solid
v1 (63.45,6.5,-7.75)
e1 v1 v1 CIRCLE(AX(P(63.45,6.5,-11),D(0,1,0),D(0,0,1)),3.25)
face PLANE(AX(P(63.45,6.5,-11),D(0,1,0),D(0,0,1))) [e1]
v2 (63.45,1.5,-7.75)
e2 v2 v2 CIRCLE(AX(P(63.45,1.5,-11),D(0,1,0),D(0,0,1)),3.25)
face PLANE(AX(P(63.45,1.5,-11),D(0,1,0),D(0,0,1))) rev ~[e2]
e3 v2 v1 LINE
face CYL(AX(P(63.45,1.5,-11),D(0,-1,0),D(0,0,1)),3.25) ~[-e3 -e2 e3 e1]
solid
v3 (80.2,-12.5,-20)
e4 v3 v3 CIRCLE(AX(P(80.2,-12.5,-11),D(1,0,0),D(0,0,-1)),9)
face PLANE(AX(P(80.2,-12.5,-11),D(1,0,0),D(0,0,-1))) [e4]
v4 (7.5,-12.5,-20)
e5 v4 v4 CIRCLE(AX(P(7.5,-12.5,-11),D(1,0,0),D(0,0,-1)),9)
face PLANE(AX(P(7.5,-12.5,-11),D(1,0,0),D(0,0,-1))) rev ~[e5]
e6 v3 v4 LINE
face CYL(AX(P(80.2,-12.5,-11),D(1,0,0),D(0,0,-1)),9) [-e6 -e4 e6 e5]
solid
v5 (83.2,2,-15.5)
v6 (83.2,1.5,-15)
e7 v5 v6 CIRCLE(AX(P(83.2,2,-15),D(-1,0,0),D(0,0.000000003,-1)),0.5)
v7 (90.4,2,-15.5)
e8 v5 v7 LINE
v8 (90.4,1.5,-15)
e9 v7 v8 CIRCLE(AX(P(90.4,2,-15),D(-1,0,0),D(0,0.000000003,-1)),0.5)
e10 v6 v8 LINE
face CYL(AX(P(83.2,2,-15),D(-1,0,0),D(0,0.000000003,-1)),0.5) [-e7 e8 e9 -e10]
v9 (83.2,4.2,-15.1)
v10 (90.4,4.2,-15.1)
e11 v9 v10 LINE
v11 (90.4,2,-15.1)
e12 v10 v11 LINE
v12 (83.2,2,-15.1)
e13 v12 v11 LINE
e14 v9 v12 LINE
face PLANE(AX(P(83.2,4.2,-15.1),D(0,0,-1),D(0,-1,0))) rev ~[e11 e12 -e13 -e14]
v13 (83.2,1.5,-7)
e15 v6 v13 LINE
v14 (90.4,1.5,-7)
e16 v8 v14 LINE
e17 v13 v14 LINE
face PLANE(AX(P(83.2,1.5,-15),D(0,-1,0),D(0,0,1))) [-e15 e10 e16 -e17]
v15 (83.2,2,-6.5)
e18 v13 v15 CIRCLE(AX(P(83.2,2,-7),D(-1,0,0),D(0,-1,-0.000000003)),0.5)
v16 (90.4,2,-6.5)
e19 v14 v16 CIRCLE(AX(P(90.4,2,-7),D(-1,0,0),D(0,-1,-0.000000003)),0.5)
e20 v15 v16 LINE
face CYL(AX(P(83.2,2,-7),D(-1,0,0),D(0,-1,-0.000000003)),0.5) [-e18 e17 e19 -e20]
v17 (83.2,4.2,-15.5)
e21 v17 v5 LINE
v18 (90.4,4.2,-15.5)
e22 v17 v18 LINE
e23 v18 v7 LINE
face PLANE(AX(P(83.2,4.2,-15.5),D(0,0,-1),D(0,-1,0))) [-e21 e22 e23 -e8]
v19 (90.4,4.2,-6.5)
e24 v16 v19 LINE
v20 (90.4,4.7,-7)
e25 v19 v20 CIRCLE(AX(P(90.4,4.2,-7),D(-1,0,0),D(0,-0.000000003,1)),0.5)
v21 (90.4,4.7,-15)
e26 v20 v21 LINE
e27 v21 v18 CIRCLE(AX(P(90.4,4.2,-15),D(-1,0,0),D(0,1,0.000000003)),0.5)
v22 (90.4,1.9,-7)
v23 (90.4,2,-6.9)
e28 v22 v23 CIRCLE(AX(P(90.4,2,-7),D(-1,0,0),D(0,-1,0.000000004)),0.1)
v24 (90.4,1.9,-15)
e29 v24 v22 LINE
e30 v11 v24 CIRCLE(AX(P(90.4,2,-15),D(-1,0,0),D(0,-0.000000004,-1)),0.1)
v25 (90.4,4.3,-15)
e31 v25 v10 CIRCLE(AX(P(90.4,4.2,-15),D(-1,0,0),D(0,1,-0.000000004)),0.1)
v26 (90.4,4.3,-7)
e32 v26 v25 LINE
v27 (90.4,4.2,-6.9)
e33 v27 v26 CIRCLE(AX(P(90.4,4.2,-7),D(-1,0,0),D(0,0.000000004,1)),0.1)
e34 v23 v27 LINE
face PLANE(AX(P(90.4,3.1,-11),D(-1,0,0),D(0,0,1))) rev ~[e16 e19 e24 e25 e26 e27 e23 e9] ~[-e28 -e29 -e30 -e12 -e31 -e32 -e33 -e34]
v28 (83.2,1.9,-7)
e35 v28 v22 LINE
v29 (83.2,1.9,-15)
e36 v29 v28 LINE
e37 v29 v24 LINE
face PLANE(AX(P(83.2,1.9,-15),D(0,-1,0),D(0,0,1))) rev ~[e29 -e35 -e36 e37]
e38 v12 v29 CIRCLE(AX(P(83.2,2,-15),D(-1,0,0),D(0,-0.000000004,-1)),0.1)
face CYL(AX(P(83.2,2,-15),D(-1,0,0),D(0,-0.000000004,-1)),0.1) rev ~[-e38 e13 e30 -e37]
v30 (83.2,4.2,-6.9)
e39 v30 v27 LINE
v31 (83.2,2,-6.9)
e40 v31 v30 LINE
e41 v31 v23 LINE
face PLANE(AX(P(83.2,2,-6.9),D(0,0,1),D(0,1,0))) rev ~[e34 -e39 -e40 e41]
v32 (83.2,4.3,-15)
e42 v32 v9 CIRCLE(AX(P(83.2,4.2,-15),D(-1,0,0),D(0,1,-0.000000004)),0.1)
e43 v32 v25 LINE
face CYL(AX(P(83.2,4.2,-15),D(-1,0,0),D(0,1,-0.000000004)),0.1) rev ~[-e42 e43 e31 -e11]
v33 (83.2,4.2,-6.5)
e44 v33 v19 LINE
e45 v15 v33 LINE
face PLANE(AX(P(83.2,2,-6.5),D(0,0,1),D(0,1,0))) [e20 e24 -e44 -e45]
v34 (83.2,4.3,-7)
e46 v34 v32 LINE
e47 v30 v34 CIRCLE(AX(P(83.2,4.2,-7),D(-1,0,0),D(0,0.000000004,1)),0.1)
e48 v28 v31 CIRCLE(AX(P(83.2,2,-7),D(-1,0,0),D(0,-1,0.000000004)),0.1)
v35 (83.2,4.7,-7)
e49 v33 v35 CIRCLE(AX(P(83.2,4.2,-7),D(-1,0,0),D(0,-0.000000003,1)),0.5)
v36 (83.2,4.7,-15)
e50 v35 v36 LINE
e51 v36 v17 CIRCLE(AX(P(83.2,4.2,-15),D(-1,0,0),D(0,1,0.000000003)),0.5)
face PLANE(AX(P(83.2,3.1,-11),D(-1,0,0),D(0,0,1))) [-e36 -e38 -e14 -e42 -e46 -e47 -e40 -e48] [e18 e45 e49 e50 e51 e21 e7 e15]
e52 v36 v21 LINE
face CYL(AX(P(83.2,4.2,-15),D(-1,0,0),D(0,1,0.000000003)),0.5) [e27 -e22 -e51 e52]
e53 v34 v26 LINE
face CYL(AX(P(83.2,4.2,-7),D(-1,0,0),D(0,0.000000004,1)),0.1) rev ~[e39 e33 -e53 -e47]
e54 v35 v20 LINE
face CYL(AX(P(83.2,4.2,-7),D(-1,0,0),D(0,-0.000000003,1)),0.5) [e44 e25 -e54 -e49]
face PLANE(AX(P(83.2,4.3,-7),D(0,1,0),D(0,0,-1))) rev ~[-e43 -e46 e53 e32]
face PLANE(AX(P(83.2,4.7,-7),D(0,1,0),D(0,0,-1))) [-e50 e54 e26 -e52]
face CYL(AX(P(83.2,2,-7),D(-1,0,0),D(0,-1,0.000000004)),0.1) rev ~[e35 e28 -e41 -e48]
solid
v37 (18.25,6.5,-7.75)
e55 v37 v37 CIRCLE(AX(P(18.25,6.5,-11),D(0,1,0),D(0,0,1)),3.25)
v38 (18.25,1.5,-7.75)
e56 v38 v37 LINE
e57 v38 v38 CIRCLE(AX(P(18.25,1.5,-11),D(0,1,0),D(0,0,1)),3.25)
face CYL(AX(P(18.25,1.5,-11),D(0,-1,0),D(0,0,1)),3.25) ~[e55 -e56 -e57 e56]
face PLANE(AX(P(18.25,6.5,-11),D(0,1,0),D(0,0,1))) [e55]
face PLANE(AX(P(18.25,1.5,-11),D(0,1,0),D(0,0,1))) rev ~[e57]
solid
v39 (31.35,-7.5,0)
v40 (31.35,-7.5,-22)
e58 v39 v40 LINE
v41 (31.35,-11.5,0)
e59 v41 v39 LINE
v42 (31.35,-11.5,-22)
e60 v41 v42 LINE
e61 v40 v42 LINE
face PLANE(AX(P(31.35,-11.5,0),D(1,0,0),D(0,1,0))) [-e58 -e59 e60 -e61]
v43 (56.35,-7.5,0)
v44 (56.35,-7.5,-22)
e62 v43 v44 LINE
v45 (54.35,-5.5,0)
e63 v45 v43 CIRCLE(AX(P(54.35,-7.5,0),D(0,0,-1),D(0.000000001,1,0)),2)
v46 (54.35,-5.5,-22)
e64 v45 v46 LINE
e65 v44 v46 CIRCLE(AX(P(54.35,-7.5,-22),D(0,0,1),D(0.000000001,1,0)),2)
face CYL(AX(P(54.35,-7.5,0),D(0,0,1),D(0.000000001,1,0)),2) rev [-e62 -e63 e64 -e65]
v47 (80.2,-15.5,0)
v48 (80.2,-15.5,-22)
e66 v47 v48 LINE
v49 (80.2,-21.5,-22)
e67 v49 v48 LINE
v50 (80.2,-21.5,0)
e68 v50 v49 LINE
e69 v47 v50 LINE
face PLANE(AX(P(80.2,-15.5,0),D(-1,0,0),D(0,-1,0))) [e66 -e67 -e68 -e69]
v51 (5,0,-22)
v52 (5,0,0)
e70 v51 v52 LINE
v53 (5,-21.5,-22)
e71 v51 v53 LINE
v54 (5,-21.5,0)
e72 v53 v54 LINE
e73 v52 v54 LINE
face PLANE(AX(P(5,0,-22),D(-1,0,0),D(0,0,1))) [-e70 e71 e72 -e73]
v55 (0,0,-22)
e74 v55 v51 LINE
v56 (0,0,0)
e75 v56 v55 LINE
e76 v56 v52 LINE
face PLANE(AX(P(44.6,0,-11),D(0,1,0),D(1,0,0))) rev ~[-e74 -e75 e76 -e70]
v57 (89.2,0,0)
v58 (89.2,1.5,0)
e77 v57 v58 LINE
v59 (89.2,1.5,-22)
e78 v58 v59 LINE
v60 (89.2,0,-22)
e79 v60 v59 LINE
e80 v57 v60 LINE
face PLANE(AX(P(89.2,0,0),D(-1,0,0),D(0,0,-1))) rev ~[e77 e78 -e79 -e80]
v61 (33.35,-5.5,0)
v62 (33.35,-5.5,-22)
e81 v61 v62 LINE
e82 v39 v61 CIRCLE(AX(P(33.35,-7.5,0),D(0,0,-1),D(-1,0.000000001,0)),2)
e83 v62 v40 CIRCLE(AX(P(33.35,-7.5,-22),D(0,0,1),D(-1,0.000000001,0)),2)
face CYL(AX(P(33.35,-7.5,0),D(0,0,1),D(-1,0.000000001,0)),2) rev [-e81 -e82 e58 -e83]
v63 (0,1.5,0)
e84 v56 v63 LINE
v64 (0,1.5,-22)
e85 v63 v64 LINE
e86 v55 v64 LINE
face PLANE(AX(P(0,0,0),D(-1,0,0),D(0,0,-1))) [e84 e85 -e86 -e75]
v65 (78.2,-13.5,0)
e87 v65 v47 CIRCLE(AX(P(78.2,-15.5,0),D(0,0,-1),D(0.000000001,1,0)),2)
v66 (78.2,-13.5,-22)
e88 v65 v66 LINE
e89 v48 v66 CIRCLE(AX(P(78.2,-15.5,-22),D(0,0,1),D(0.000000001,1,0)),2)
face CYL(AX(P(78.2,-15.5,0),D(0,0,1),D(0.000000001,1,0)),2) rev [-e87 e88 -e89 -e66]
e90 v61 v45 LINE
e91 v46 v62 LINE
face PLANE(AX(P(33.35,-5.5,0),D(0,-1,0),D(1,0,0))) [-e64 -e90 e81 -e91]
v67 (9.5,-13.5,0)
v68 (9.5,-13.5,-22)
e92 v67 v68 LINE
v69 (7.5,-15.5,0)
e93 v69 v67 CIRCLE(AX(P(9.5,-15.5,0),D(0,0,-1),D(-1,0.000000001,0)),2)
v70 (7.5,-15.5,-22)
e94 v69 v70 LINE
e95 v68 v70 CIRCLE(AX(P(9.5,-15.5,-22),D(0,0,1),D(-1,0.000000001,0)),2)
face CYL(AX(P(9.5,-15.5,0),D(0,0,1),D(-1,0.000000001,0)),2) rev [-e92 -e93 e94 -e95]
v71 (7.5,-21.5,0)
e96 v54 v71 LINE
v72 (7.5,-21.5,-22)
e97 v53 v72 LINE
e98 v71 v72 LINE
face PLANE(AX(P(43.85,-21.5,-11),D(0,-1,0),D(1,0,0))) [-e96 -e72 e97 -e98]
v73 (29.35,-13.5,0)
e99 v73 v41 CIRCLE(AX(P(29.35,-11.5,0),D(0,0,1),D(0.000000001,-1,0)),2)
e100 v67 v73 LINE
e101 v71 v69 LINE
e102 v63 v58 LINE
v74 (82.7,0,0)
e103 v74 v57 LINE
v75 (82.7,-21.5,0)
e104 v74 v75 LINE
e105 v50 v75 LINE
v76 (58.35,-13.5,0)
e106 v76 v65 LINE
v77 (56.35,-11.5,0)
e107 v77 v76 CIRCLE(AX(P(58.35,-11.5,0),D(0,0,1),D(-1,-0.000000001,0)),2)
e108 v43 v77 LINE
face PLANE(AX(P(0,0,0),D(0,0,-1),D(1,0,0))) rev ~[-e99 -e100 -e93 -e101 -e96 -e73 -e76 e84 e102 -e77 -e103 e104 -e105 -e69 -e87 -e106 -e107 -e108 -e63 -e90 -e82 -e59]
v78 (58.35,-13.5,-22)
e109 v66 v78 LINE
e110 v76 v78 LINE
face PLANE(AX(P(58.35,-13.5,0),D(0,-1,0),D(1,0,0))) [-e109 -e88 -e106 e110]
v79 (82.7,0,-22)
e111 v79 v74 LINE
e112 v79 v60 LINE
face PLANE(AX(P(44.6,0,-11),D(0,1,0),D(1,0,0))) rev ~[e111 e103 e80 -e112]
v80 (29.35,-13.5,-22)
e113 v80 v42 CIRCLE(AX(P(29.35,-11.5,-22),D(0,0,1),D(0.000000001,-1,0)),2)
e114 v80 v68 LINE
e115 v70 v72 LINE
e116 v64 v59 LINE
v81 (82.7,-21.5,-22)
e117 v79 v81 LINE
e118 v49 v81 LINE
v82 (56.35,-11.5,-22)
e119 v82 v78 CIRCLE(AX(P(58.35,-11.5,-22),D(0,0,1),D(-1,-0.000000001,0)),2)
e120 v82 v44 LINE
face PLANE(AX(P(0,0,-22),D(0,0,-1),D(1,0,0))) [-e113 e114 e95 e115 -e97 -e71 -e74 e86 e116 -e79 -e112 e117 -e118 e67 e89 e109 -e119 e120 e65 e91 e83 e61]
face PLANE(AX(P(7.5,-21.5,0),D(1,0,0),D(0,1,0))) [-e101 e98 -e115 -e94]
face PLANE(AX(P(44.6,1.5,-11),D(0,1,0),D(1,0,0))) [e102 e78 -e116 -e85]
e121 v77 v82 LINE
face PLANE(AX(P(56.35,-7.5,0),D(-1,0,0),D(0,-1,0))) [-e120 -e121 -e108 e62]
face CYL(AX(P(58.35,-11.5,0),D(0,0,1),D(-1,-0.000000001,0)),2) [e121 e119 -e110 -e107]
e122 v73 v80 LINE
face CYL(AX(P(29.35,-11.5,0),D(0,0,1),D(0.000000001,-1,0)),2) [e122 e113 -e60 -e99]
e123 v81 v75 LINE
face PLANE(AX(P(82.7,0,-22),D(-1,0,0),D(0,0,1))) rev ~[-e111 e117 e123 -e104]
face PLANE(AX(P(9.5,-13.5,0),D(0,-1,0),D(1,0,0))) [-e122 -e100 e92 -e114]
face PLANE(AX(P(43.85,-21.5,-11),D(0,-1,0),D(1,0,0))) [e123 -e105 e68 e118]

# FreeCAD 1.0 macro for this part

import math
import FreeCAD as App
import Part
import Sketcher
from FreeCAD import Vector
Q = App.Units.Quantity


def add_polygon(sketch, points):
    """Adds a closed chain of lines whose ends are joined by coincident constraints."""
    first, n = sketch.GeometryCount, len(points)
    for a, b in zip(points, points[1:] + points[:1]):
        sketch.addGeometry(Part.LineSegment(App.Vector(*a, 0), App.Vector(*b, 0)), False)
    for i in range(n):
        sketch.addConstraint(Sketcher.Constraint("Coincident", first + i, 2, first + (i + 1) % n, 1))

doc = App.newDocument("Part")
body = doc.addObject("PartDesign::Body", "Body")

# Sketch on XZ plane
sketch1 = body.newObject("Sketcher::SketchObject", "Sketch")
sketch1.AttachmentSupport = (doc.getObject("XZ_Plane"), [""])
sketch1.MapMode = "FlatFace"
add_polygon(sketch1, [(0, -22), (0, 0), (89, 0), (89, -22)])  # lines 0-3
sketch1.addConstraint([
    Sketcher.Constraint("Vertical", 0),
    Sketcher.Constraint("Horizontal", 1),
    Sketcher.Constraint("Vertical", 2),
    Sketcher.Constraint("Horizontal", 3),
    Sketcher.Constraint("Coincident", 0, 2, -1, 1),
    Sketcher.Constraint("DistanceY", 0, 1, 0, 2, Q("22 mm")),
    Sketcher.Constraint("DistanceX", 1, 1, 1, 2, Q("89.2 mm")),
])
pad1 = body.newObject("PartDesign::Pad", "Pad")
pad1.Profile = sketch1
pad1.Length = 1.5
pad1.Reversed = True

# Sketch on XZ plane
sketch2 = body.newObject("Sketcher::SketchObject", "Sketch001")
sketch2.AttachmentSupport = (doc.getObject("XZ_Plane"), [""])
sketch2.MapMode = "FlatFace"
add_polygon(sketch2, [(5, 0), (5, -22), (83, -22), (83, 0)])  # lines 0-3
sketch2.addConstraint([
    Sketcher.Constraint("Vertical", 0),
    Sketcher.Constraint("Horizontal", 1),
    Sketcher.Constraint("Vertical", 2),
    Sketcher.Constraint("Horizontal", 3),
    Sketcher.Constraint("PointOnObject", 2, 2, -1),
    Sketcher.Constraint("DistanceY", 0, 2, 0, 1, Q("22 mm")),
    Sketcher.Constraint("DistanceX", 1, 1, 1, 2, Q("77.7 mm")),
    Sketcher.Constraint("DistanceX", -1, 1, 0, 2, Q("5 mm")),
])
pad2 = body.newObject("PartDesign::Pad", "Pad001")
pad2.Profile = sketch2
pad2.Length = 21.5

# Sketch on XY plane
sketch3 = body.newObject("Sketcher::SketchObject", "Sketch002")
sketch3.AttachmentSupport = (doc.getObject("XY_Plane"), [""])
sketch3.MapMode = "FlatFace"
sketch3.addGeometry([
    Part.LineSegment(Vector(7.5, -15.5, 0), Vector(7.5, -21.5, 0)),  # 0
    Part.LineSegment(Vector(7.5, -21.5, 0), Vector(80.2, -21.5, 0)),  # 1
    Part.LineSegment(Vector(80.2, -21.5, 0), Vector(80.2, -15.5, 0)),  # 2
    Part.ArcOfCircle(Part.Circle(Vector(78.2, -15.5, 0), Vector(0, 0, 1), 2), math.radians(0), math.radians(90)),  # 3
    Part.LineSegment(Vector(78.2, -13.5, 0), Vector(58.4, -13.5, 0)),  # 4
    Part.ArcOfCircle(Part.Circle(Vector(58.4, -11.5, 0), Vector(0, 0, 1), 2), math.radians(-180), math.radians(-90)),  # 5
    Part.LineSegment(Vector(56.4, -11.5, 0), Vector(56.4, -7.5, 0)),  # 6
    Part.ArcOfCircle(Part.Circle(Vector(54.3, -7.5, 0), Vector(0, 0, 1), 2), math.radians(0), math.radians(90)),  # 7
    Part.LineSegment(Vector(54.4, -5.5, 0), Vector(33.4, -5.5, 0)),  # 8
    Part.ArcOfCircle(Part.Circle(Vector(33.4, -7.5, 0), Vector(0, 0, 1), 2), math.radians(90), math.radians(180)),  # 9
    Part.LineSegment(Vector(31.4, -7.5, 0), Vector(31.4, -11.5, 0)),  # 10
    Part.ArcOfCircle(Part.Circle(Vector(29.3, -11.5, 0), Vector(0, 0, 1), 2), math.radians(-90), math.radians(0)),  # 11
    Part.LineSegment(Vector(29.4, -13.5, 0), Vector(9.5, -13.5, 0)),  # 12
    Part.ArcOfCircle(Part.Circle(Vector(9.5, -15.5, 0), Vector(0, 0, 1), 2), math.radians(90), math.radians(180)),  # 13
], False)
sketch3.addConstraint([
    Sketcher.Constraint("Coincident", 0, 2, 1, 1),
    Sketcher.Constraint("Coincident", 1, 2, 2, 1),
    Sketcher.Constraint("Tangent", 2, 2, 3, 1),
    Sketcher.Constraint("Tangent", 3, 2, 4, 1),
    Sketcher.Constraint("Tangent", 4, 2, 5, 2),
    Sketcher.Constraint("Tangent", 5, 1, 6, 1),
    Sketcher.Constraint("Tangent", 6, 2, 7, 1),
    Sketcher.Constraint("Tangent", 7, 2, 8, 1),
    Sketcher.Constraint("Tangent", 8, 2, 9, 1),
    Sketcher.Constraint("Tangent", 9, 2, 10, 1),
    Sketcher.Constraint("Tangent", 10, 2, 11, 2),
    Sketcher.Constraint("Tangent", 11, 1, 12, 1),
    Sketcher.Constraint("Tangent", 12, 2, 13, 1),
    Sketcher.Constraint("Tangent", 13, 2, 0, 1),
    Sketcher.Constraint("Vertical", 0),
    Sketcher.Constraint("Horizontal", 1),
    Sketcher.Constraint("Vertical", 2),
    Sketcher.Constraint("Horizontal", 4),
    Sketcher.Constraint("Vertical", 6),
    Sketcher.Constraint("Horizontal", 8),
    Sketcher.Constraint("Vertical", 10),
    Sketcher.Constraint("Horizontal", 12),
    Sketcher.Constraint("Equal", 3, 5),
    Sketcher.Constraint("Equal", 5, 7),
    Sketcher.Constraint("Equal", 7, 9),
    Sketcher.Constraint("Equal", 9, 11),
    Sketcher.Constraint("Equal", 11, 13),
    Sketcher.Constraint("Horizontal", 5, 3, 11, 3),
    Sketcher.Constraint("Equal", 4, 12),
    Sketcher.Constraint("Radius", 3, Q("2 mm")),
    Sketcher.Constraint("DistanceX", 8, 2, 8, 1, Q("21 mm")),
    Sketcher.Constraint("DistanceY", 0, 2, 0, 1, Q("6 mm")),
    Sketcher.Constraint("DistanceY", 6, 1, 6, 2, Q("4 mm")),
    Sketcher.Constraint("DistanceX", 1, 1, 1, 2, Q("72.7 mm")),
    Sketcher.Constraint("DistanceX", -1, 1, 3, 3, Q("78.2 mm")),
    Sketcher.Constraint("DistanceY", 3, 3, -1, 1, Q("15.5 mm")),
])
pocket1 = body.newObject("PartDesign::Pocket", "Pocket")
pocket1.Profile = sketch3
pocket1.Length = 31.5
body2 = doc.addObject("PartDesign::Body", "Body001")

# Sketch on YZ plane
sketch4 = body2.newObject("Sketcher::SketchObject", "Sketch003")
sketch4.AttachmentSupport = (doc.getObject("YZ_Plane001"), [""])
sketch4.MapMode = "FlatFace"
sketch4.AttachmentOffset = App.Placement(Vector(0, 0, 89.2), App.Rotation())
sketch4.addGeometry([
    Part.LineSegment(Vector(4.7, -15, 0), Vector(4.7, -7, 0)),  # 0
    Part.ArcOfCircle(Part.Circle(Vector(4.2, -7, 0), Vector(0, 0, 1), 0.5), math.radians(0), math.radians(90)),  # 1
    Part.LineSegment(Vector(4.2, -6.5, 0), Vector(2, -6.5, 0)),  # 2
    Part.ArcOfCircle(Part.Circle(Vector(2, -7, 0), Vector(0, 0, 1), 0.5), math.radians(90), math.radians(180)),  # 3
    Part.LineSegment(Vector(1.5, -7, 0), Vector(1.5, -15, 0)),  # 4
    Part.ArcOfCircle(Part.Circle(Vector(2, -15, 0), Vector(0, 0, 1), 0.5), math.radians(180), math.radians(270)),  # 5
    Part.LineSegment(Vector(2, -15.5, 0), Vector(4.2, -15.5, 0)),  # 6
    Part.ArcOfCircle(Part.Circle(Vector(4.2, -15, 0), Vector(0, 0, 1), 0.5), math.radians(-90), math.radians(0)),  # 7
    Part.LineSegment(Vector(4.3, -7, 0), Vector(4.3, -15, 0)),  # 8
    Part.ArcOfCircle(Part.Circle(Vector(4.2, -15, 0), Vector(0, 0, 1), 0.1), math.radians(-90), math.radians(0)),  # 9
    Part.LineSegment(Vector(4.2, -15.1, 0), Vector(2, -15.1, 0)),  # 10
    Part.ArcOfCircle(Part.Circle(Vector(2, -15, 0), Vector(0, 0, 1), 0.1), math.radians(180), math.radians(270)),  # 11
    Part.LineSegment(Vector(1.9, -15, 0), Vector(1.9, -7, 0)),  # 12
    Part.ArcOfCircle(Part.Circle(Vector(2, -7, 0), Vector(0, 0, 1), 0.1), math.radians(90), math.radians(180)),  # 13
    Part.LineSegment(Vector(2, -6.9, 0), Vector(4.2, -6.9, 0)),  # 14
    Part.ArcOfCircle(Part.Circle(Vector(4.2, -7, 0), Vector(0, 0, 1), 0.1), math.radians(0), math.radians(90)),  # 15
], False)
sketch4.addConstraint([
    Sketcher.Constraint("Tangent", 0, 2, 1, 1),
    Sketcher.Constraint("Tangent", 1, 2, 2, 1),
    Sketcher.Constraint("Tangent", 2, 2, 3, 1),
    Sketcher.Constraint("Tangent", 3, 2, 4, 1),
    Sketcher.Constraint("Tangent", 4, 2, 5, 1),
    Sketcher.Constraint("Tangent", 5, 2, 6, 1),
    Sketcher.Constraint("Tangent", 6, 2, 7, 1),
    Sketcher.Constraint("Tangent", 7, 2, 0, 1),
    Sketcher.Constraint("Tangent", 8, 2, 9, 2),
    Sketcher.Constraint("Tangent", 9, 1, 10, 1),
    Sketcher.Constraint("Tangent", 10, 2, 11, 2),
    Sketcher.Constraint("Tangent", 11, 1, 12, 1),
    Sketcher.Constraint("Tangent", 12, 2, 13, 2),
    Sketcher.Constraint("Tangent", 13, 1, 14, 1),
    Sketcher.Constraint("Tangent", 14, 2, 15, 2),
    Sketcher.Constraint("Tangent", 15, 1, 8, 1),
    Sketcher.Constraint("Vertical", 0),
    Sketcher.Constraint("Horizontal", 2),
    Sketcher.Constraint("Vertical", 4),
    Sketcher.Constraint("Horizontal", 6),
    Sketcher.Constraint("Vertical", 8),
    Sketcher.Constraint("Horizontal", 10),
    Sketcher.Constraint("Vertical", 12),
    Sketcher.Constraint("Horizontal", 14),
    Sketcher.Constraint("Coincident", 9, 3, 7, 3),
    Sketcher.Constraint("Coincident", 11, 3, 5, 3),
    Sketcher.Constraint("Coincident", 13, 3, 3, 3),
    Sketcher.Constraint("Equal", 1, 3),
    Sketcher.Constraint("Equal", 3, 5),
    Sketcher.Constraint("Equal", 5, 7),
    Sketcher.Constraint("Equal", 13, 15),
    Sketcher.Constraint("Radius", 1, Q("0.5 mm")),
    Sketcher.Constraint("Radius", 9, Q("0.1 mm")),
    Sketcher.Constraint("DistanceY", 0, 1, 0, 2, Q("8 mm")),
    Sketcher.Constraint("DistanceX", 2, 2, 2, 1, Q("2.2 mm")),
    Sketcher.Constraint("DistanceY", 1, 3, -1, 1, Q("7 mm")),
    Sketcher.Constraint("DistanceX", -1, 1, 3, 3, Q("2 mm")),
])
pad3 = body2.newObject("PartDesign::Pad", "Pad002")
pad3.Profile = sketch4
pad3.Type = "TwoLengths"
pad3.Length = 1.2
pad3.Length2 = 6
body3 = doc.addObject("PartDesign::Body", "Body002")

# Sketch on XZ plane
sketch5 = body3.newObject("Sketcher::SketchObject", "Sketch004")
sketch5.AttachmentSupport = (doc.getObject("XZ_Plane002"), [""])
sketch5.MapMode = "FlatFace"
sketch5.AttachmentOffset = App.Placement(Vector(0, 0, -1.5), App.Rotation())
sketch5.addGeometry(Part.Circle(Vector(18.2, -11, 0), Vector(0, 0, 1), 3.2), False)
sketch5.addConstraint([
    Sketcher.Constraint("Diameter", 0, Q("6.5 mm")),
    Sketcher.Constraint("DistanceY", 0, 3, -1, 1, Q("11 mm")),
    Sketcher.Constraint("DistanceX", -1, 1, 0, 3, Q("18.25 mm")),
])
pad4 = body3.newObject("PartDesign::Pad", "Pad003")
pad4.Profile = sketch5
pad4.Length = 5
pad4.Reversed = True
body4 = doc.addObject("PartDesign::Body", "Body003")

# Sketch on XZ plane
sketch6 = body4.newObject("Sketcher::SketchObject", "Sketch005")
sketch6.AttachmentSupport = (doc.getObject("XZ_Plane003"), [""])
sketch6.MapMode = "FlatFace"
sketch6.AttachmentOffset = App.Placement(Vector(0, 0, -1.5), App.Rotation())
sketch6.addGeometry(Part.Circle(Vector(63.5, -11, 0), Vector(0, 0, 1), 3.2), False)
sketch6.addConstraint([
    Sketcher.Constraint("Diameter", 0, Q("6.5 mm")),
    Sketcher.Constraint("DistanceY", 0, 3, -1, 1, Q("11 mm")),
    Sketcher.Constraint("DistanceX", -1, 1, 0, 3, Q("63.45 mm")),
])
pad5 = body4.newObject("PartDesign::Pad", "Pad004")
pad5.Profile = sketch6
pad5.Length = 5
pad5.Reversed = True
body5 = doc.addObject("PartDesign::Body", "Body004")

# Sketch on YZ plane
sketch7 = body5.newObject("Sketcher::SketchObject", "Sketch006")
sketch7.AttachmentSupport = (doc.getObject("YZ_Plane004"), [""])
sketch7.MapMode = "FlatFace"
sketch7.AttachmentOffset = App.Placement(Vector(0, 0, 80.2), App.Rotation())
sketch7.addGeometry(Part.Circle(Vector(-12, -11, 0), Vector(0, 0, 1), 9), False)
sketch7.addConstraint([
    Sketcher.Constraint("Diameter", 0, Q("18 mm")),
    Sketcher.Constraint("DistanceY", 0, 3, -1, 1, Q("11 mm")),
    Sketcher.Constraint("DistanceX", 0, 3, -1, 1, Q("12.5 mm")),
])
pad6 = body5.newObject("PartDesign::Pad", "Pad005")
pad6.Profile = sketch7
pad6.Length = 72.7
pad6.Reversed = True

doc.recompute()
